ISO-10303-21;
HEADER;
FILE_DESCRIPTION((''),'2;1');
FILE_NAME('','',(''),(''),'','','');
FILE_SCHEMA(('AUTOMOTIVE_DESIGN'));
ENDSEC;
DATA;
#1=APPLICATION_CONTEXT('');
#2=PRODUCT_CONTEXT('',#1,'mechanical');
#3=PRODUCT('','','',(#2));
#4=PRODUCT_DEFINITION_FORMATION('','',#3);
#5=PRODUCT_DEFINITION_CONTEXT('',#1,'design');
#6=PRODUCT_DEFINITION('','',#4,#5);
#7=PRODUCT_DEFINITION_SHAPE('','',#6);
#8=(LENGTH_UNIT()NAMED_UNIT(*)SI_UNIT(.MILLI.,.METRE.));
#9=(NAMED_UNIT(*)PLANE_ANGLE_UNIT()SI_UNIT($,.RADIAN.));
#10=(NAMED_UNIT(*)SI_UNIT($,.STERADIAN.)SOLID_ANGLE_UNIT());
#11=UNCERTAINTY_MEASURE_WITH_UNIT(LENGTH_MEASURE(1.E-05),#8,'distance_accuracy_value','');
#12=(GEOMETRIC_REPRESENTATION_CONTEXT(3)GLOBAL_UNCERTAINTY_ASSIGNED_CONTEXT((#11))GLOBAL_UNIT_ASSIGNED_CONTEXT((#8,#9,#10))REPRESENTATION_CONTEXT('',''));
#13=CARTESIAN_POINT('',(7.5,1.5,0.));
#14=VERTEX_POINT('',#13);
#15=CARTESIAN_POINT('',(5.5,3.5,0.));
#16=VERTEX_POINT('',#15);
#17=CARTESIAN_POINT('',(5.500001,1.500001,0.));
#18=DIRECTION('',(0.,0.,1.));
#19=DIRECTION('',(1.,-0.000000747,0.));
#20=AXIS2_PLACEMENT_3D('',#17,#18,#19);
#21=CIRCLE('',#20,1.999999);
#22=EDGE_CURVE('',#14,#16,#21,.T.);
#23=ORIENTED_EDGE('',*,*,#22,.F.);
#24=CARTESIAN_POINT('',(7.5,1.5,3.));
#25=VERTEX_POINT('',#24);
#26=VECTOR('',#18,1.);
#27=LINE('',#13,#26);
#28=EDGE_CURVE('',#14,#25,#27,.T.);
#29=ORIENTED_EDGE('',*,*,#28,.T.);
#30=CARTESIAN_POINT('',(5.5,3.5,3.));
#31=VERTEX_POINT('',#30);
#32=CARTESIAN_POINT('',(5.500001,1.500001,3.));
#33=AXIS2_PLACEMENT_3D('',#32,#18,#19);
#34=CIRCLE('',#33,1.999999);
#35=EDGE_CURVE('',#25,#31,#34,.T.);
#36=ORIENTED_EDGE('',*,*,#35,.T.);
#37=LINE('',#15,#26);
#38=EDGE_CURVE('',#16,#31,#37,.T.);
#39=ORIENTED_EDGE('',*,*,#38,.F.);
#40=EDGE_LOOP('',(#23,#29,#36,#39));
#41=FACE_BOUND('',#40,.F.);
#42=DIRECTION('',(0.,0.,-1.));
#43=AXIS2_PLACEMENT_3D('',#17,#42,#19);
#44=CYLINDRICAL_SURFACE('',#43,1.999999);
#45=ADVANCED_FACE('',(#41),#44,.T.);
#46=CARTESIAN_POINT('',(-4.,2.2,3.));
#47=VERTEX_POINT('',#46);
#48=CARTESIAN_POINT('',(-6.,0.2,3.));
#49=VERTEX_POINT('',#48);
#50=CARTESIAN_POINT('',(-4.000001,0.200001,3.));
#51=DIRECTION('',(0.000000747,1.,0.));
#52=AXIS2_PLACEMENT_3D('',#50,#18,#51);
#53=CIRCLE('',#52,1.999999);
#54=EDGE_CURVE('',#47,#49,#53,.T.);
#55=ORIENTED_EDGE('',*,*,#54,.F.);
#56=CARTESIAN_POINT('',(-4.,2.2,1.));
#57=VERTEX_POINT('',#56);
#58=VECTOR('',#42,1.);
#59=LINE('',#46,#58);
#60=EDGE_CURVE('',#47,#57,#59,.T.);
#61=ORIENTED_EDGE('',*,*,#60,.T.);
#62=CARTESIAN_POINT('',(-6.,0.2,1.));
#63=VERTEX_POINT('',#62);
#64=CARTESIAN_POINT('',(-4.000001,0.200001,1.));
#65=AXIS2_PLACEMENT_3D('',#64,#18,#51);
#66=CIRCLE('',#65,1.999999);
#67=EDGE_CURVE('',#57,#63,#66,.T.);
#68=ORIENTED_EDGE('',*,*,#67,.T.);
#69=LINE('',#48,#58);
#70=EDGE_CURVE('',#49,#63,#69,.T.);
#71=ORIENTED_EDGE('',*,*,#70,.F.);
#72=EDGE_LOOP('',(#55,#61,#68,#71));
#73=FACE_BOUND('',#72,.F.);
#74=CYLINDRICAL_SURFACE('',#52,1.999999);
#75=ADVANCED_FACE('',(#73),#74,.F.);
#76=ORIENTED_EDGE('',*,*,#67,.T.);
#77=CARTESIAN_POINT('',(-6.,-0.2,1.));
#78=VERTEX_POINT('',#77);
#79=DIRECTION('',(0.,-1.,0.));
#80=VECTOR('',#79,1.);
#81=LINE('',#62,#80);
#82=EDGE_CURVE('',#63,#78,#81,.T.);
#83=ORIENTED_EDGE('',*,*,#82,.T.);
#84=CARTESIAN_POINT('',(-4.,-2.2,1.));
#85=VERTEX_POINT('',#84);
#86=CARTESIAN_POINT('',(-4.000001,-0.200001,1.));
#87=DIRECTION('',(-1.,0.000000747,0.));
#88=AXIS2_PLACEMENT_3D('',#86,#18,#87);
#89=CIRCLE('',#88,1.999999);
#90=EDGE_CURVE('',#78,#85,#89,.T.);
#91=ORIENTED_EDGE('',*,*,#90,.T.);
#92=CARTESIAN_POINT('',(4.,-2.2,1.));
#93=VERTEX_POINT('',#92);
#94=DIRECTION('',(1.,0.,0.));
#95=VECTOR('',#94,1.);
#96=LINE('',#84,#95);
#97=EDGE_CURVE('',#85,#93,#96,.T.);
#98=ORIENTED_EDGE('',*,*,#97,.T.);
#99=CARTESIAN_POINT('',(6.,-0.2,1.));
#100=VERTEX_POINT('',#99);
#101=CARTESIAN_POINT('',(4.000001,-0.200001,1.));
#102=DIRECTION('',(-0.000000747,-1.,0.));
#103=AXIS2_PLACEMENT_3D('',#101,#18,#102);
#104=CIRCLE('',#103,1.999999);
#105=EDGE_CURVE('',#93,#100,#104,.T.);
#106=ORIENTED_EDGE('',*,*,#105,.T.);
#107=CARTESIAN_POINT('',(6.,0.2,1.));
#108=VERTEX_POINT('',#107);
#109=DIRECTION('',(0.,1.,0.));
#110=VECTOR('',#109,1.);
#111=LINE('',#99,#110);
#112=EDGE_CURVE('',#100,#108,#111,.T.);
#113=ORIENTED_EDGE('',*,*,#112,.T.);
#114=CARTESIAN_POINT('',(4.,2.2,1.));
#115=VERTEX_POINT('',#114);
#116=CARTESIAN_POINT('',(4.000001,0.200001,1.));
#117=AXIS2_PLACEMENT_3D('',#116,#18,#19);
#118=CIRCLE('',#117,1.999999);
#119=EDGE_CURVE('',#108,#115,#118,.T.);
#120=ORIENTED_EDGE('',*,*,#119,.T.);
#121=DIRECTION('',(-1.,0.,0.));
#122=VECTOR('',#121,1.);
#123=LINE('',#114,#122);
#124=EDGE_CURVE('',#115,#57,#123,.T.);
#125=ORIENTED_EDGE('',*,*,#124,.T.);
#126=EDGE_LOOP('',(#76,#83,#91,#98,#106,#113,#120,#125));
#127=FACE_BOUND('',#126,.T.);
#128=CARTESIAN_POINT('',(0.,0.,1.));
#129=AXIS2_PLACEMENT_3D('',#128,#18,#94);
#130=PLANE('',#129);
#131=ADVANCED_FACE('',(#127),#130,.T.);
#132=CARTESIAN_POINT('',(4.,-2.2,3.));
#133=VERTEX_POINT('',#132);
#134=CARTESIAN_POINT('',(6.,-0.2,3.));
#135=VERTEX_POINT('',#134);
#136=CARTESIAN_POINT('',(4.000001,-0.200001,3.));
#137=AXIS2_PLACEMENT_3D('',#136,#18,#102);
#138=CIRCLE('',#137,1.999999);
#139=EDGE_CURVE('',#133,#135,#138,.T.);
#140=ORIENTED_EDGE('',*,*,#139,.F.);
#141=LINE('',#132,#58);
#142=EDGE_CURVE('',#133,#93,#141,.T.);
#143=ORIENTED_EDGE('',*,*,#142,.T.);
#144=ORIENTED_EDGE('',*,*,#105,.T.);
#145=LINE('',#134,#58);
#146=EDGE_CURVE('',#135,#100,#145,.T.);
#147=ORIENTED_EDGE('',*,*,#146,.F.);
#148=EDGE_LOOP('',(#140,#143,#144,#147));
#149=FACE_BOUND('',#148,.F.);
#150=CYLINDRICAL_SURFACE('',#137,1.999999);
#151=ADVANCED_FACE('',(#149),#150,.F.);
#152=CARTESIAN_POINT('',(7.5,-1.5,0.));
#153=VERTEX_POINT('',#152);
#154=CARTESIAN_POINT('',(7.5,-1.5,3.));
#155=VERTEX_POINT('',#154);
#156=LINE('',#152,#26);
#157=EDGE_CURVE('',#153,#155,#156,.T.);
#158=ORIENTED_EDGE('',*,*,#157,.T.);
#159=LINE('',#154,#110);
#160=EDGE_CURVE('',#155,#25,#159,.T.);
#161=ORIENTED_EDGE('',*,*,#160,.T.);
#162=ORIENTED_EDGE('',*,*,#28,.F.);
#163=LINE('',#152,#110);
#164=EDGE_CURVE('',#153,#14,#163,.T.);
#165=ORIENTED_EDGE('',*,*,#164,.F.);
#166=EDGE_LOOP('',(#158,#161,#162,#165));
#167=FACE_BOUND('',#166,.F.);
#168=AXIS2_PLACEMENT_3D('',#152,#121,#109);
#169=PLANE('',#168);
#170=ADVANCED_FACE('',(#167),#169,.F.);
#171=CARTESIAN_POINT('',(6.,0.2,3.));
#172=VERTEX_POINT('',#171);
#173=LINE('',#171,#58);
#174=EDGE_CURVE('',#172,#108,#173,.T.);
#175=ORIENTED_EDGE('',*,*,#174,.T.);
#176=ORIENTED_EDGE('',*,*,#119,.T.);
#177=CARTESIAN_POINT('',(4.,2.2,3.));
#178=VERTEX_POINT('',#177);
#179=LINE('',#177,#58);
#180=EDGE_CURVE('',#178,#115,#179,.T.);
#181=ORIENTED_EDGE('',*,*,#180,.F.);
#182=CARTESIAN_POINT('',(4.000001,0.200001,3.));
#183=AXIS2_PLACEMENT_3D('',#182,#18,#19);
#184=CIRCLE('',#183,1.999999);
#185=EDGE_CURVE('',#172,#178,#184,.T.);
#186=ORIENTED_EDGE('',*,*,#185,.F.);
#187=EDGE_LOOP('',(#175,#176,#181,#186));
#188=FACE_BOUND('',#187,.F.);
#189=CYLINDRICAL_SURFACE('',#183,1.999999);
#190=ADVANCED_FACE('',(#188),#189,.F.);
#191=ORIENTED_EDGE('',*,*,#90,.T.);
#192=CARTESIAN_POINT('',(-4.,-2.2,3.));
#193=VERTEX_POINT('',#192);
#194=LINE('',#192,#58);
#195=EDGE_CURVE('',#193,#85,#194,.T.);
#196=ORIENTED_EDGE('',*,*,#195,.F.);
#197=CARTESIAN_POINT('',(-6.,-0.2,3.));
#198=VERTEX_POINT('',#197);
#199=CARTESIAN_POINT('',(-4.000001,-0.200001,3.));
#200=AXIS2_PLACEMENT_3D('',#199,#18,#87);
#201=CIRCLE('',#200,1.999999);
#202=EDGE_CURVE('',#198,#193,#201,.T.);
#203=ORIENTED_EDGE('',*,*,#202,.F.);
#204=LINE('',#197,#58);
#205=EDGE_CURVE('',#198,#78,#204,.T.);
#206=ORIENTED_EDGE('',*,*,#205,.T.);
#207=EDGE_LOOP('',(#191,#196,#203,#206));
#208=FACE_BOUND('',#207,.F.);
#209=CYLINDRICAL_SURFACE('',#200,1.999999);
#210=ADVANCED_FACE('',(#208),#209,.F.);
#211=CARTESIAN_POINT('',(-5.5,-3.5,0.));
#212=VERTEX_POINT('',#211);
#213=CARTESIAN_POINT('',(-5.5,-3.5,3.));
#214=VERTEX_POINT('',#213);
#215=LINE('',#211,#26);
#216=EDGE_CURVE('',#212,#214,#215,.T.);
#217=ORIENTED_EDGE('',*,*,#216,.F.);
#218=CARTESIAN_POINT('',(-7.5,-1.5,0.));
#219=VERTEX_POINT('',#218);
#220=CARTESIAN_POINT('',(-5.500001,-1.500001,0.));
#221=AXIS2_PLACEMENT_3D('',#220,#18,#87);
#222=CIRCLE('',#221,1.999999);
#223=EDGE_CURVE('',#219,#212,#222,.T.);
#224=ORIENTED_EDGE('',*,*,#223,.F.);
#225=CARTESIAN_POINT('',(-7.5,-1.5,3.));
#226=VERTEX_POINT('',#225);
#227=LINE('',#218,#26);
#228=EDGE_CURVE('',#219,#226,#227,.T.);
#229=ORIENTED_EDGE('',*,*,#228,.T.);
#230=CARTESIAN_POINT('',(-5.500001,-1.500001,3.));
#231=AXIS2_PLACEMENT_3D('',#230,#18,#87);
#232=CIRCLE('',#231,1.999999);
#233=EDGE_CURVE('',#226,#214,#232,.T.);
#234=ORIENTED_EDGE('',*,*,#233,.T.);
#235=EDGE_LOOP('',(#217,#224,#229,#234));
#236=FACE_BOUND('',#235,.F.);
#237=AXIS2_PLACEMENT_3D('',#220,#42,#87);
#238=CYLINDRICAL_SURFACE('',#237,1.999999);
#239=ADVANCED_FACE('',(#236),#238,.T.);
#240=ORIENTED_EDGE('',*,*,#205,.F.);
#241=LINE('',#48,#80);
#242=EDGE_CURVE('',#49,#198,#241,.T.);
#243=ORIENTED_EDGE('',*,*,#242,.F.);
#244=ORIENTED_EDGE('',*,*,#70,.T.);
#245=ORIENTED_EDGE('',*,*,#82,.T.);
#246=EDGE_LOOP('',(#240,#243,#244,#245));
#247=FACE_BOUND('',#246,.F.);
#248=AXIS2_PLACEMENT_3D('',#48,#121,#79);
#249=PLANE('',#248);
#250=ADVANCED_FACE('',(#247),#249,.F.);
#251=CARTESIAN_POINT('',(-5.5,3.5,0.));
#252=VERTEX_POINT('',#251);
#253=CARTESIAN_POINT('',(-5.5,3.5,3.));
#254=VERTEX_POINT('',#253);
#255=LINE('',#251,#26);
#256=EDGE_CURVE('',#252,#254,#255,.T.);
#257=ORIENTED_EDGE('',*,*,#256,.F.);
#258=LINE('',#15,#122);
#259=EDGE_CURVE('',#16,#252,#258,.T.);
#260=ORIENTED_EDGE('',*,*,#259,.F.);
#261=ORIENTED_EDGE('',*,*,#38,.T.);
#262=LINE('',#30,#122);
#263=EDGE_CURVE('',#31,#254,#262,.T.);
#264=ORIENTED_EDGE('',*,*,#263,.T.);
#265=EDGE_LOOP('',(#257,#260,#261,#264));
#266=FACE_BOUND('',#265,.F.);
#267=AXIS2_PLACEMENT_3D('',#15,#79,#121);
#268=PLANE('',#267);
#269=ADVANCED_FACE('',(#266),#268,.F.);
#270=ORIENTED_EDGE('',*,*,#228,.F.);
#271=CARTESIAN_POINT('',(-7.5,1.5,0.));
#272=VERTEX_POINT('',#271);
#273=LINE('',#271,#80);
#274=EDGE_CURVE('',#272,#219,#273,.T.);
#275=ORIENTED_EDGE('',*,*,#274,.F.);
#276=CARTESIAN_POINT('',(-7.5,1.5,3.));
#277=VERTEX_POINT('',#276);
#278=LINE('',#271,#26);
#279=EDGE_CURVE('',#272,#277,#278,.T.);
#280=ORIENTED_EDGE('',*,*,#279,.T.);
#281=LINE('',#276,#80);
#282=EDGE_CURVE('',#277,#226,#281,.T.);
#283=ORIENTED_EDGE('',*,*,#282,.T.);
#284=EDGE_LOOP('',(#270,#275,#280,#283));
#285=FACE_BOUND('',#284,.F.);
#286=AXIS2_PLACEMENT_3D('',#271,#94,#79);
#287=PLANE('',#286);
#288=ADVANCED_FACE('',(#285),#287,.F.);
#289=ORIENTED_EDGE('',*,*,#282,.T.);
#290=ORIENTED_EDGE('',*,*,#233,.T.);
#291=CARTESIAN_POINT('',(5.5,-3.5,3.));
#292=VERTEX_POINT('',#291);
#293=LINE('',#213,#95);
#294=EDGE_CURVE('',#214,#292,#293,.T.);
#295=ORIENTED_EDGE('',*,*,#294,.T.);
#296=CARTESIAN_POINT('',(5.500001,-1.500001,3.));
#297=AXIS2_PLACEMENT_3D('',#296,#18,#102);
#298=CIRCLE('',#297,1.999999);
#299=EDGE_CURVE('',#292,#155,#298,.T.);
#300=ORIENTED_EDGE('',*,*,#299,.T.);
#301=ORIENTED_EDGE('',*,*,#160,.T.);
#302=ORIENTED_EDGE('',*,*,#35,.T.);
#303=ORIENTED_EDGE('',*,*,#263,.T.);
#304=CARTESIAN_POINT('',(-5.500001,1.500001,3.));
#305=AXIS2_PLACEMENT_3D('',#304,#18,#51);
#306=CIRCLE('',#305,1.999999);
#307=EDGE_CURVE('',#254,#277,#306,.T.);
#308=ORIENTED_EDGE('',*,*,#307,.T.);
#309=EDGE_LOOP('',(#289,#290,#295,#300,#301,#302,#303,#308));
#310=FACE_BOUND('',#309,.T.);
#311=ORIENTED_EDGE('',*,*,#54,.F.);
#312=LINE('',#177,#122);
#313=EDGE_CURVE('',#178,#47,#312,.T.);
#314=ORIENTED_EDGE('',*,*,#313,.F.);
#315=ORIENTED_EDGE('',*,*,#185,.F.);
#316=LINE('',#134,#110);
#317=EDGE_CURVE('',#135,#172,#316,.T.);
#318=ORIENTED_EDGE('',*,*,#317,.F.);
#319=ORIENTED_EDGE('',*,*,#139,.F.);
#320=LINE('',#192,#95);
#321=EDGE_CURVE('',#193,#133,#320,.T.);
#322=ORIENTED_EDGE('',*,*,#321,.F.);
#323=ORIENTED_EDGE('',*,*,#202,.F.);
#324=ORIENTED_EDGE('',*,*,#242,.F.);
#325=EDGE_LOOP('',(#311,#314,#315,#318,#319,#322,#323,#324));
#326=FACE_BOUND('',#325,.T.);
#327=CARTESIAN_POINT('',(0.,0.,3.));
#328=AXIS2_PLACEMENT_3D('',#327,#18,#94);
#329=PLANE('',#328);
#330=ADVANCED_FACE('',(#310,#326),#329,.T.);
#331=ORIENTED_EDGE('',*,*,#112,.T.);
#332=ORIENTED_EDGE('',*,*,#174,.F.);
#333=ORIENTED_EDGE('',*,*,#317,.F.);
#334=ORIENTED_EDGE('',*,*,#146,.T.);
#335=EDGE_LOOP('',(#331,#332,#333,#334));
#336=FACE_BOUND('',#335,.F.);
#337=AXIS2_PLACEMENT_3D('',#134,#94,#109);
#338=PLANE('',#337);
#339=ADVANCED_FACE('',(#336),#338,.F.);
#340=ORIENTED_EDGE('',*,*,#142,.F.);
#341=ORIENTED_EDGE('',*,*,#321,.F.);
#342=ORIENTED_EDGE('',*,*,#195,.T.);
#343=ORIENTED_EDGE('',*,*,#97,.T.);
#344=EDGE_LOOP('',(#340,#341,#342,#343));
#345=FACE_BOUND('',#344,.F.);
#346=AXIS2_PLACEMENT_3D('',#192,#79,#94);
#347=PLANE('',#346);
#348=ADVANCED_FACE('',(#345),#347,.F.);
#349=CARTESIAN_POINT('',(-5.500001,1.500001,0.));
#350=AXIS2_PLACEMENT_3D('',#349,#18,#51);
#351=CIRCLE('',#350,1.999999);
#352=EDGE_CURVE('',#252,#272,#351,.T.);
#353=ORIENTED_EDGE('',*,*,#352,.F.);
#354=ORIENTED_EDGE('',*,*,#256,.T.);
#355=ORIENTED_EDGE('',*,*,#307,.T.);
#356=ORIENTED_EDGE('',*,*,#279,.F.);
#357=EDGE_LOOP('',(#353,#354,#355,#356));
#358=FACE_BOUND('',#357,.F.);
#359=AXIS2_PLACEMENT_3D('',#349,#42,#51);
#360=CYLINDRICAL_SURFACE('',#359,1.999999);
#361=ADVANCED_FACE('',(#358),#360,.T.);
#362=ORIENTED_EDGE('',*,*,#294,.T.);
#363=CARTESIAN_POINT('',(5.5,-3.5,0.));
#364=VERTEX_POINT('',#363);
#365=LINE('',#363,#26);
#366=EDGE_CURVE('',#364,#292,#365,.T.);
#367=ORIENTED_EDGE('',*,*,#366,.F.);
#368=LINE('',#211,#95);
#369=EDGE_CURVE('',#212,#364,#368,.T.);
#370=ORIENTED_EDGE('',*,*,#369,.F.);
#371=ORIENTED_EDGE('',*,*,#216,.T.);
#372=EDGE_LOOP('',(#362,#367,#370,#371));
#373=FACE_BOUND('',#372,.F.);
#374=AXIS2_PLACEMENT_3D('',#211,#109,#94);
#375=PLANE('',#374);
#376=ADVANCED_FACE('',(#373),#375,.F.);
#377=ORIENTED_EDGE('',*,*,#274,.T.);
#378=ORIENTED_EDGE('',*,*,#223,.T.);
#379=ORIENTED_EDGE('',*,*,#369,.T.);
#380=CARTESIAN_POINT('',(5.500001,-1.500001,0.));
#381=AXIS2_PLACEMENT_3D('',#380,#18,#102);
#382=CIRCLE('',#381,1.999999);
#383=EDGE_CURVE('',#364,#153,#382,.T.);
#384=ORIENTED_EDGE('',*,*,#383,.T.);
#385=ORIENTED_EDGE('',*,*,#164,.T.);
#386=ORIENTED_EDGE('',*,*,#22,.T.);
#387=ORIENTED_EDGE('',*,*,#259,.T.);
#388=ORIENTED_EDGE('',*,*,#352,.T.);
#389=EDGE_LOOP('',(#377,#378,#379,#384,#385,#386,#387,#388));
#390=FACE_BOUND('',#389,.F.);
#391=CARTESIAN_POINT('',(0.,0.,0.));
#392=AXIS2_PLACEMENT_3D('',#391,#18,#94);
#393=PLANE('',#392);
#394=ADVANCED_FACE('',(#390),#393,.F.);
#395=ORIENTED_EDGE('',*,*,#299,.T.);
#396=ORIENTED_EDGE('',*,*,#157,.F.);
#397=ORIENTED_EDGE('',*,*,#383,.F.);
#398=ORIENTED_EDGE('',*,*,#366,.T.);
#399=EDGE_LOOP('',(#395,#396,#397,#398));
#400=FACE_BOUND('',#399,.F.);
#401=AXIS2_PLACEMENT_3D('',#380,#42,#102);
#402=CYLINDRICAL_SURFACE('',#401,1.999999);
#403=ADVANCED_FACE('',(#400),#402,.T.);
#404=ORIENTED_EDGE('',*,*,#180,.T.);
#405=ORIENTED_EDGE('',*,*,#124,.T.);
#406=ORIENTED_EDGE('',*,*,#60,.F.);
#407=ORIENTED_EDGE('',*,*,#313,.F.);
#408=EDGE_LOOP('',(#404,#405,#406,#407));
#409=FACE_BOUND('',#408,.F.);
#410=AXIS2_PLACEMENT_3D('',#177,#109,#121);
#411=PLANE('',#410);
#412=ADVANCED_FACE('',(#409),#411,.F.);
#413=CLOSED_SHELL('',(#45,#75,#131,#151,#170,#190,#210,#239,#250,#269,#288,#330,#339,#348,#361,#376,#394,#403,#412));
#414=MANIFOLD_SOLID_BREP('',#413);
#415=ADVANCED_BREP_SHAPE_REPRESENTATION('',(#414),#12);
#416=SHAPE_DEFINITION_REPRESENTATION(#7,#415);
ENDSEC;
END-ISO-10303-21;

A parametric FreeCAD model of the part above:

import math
import FreeCAD as App
import Part
import Sketcher

V = App.Vector
Q = App.Units.Quantity

doc = App.newDocument("Part")
body = doc.addObject("PartDesign::Body", "Body")

# Sketch on XY plane
sketch1 = body.newObject("Sketcher::SketchObject", "Sketch")
sketch1.AttachmentSupport = (doc.getObject("XY_Plane"), [""])
sketch1.MapMode = "FlatFace"
sketch1.addGeometry([
    Part.ArcOfCircle(Part.Circle(V(5.5, 1.5, 0), V(0, 0, 1), 2), math.radians(0), math.radians(90)),  # 0
    Part.LineSegment(V(5.5, 3.5, 0), V(-5.5, 3.5, 0)),  # 1
    Part.ArcOfCircle(Part.Circle(V(-5.5, 1.5, 0), V(0, 0, 1), 2), math.radians(90), math.radians(180)),  # 2
    Part.LineSegment(V(-7.5, 1.5, 0), V(-7.5, -1.5, 0)),  # 3
    Part.ArcOfCircle(Part.Circle(V(-5.5, -1.5, 0), V(0, 0, 1), 2), math.radians(180), math.radians(270)),  # 4
    Part.LineSegment(V(-5.5, -3.5, 0), V(5.5, -3.5, 0)),  # 5
    Part.ArcOfCircle(Part.Circle(V(5.5, -1.5, 0), V(0, 0, 1), 2), math.radians(-90), math.radians(0)),  # 6
    Part.LineSegment(V(7.5, -1.5, 0), V(7.5, 1.5, 0)),  # 7
], False)
sketch1.addConstraint([
    Sketcher.Constraint("Tangent", 0, 2, 1, 1),
    Sketcher.Constraint("Tangent", 1, 2, 2, 1),
    Sketcher.Constraint("Tangent", 2, 2, 3, 1),
    Sketcher.Constraint("Tangent", 3, 2, 4, 1),
    Sketcher.Constraint("Tangent", 4, 2, 5, 1),
    Sketcher.Constraint("Tangent", 5, 2, 6, 1),
    Sketcher.Constraint("Tangent", 6, 2, 7, 1),
    Sketcher.Constraint("Tangent", 7, 2, 0, 1),
    Sketcher.Constraint("Horizontal", 1),
    Sketcher.Constraint("Vertical", 3),
    Sketcher.Constraint("Horizontal", 5),
    Sketcher.Constraint("Vertical", 7),
    Sketcher.Constraint("Equal", 0, 2),
    Sketcher.Constraint("Equal", 2, 4),
    Sketcher.Constraint("Equal", 4, 6),
    Sketcher.Constraint("Symmetric", 0, 3, 4, 3, -1, 1),
    Sketcher.Constraint("Radius", 0, Q("1.999999 mm")),
    Sketcher.Constraint("DistanceX", 1, 2, 1, 1, Q("11 mm")),
    Sketcher.Constraint("DistanceY", 3, 2, 3, 1, Q("3 mm")),
])
pad1 = body.newObject("PartDesign::Pad", "Pad")
pad1.Profile = sketch1
pad1.Length = 3

# Sketch on XY plane
sketch2 = body.newObject("Sketcher::SketchObject", "Sketch001")
sketch2.AttachmentSupport = (doc.getObject("XY_Plane"), [""])
sketch2.MapMode = "FlatFace"
sketch2.AttachmentOffset = App.Placement(V(0, 0, 3), App.Rotation())
sketch2.addGeometry([
    Part.ArcOfCircle(Part.Circle(V(4, 0.2, 0), V(0, 0, 1), 2), math.radians(0), math.radians(90)),  # 0
    Part.LineSegment(V(4, 2.2, 0), V(-4, 2.2, 0)),  # 1
    Part.ArcOfCircle(Part.Circle(V(-4, 0.2, 0), V(0, 0, 1), 2), math.radians(90), math.radians(180)),  # 2
    Part.LineSegment(V(-6, 0.2, 0), V(-6, -0.2, 0)),  # 3
    Part.ArcOfCircle(Part.Circle(V(-4, -0.2, 0), V(0, 0, 1), 2), math.radians(180), math.radians(270)),  # 4
    Part.LineSegment(V(-4, -2.2, 0), V(4, -2.2, 0)),  # 5
    Part.ArcOfCircle(Part.Circle(V(4, -0.2, 0), V(0, 0, 1), 2), math.radians(-90), math.radians(0)),  # 6
    Part.LineSegment(V(6, -0.2, 0), V(6, 0.2, 0)),  # 7
], False)
sketch2.addConstraint([
    Sketcher.Constraint("Tangent", 0, 2, 1, 1),
    Sketcher.Constraint("Tangent", 1, 2, 2, 1),
    Sketcher.Constraint("Tangent", 2, 2, 3, 1),
    Sketcher.Constraint("Tangent", 3, 2, 4, 1),
    Sketcher.Constraint("Tangent", 4, 2, 5, 1),
    Sketcher.Constraint("Tangent", 5, 2, 6, 1),
    Sketcher.Constraint("Tangent", 6, 2, 7, 1),
    Sketcher.Constraint("Tangent", 7, 2, 0, 1),
    Sketcher.Constraint("Horizontal", 1),
    Sketcher.Constraint("Vertical", 3),
    Sketcher.Constraint("Horizontal", 5),
    Sketcher.Constraint("Vertical", 7),
    Sketcher.Constraint("Equal", 0, 2),
    Sketcher.Constraint("Equal", 2, 4),
    Sketcher.Constraint("Equal", 4, 6),
    Sketcher.Constraint("Symmetric", 0, 3, 4, 3, -1, 1),
    Sketcher.Constraint("Radius", 0, Q("1.999999 mm")),
    Sketcher.Constraint("DistanceX", 1, 2, 1, 1, Q("8 mm")),
    Sketcher.Constraint("DistanceY", 3, 2, 3, 1, Q("0.4 mm")),
])
pad2 = body.newObject("PartDesign::Pad", "Pad001")
pad2.Profile = sketch2
pad2.Length = 2
pad2.Reversed = True

# Sketch on XY plane
sketch3 = body.newObject("Sketcher::SketchObject", "Sketch002")
sketch3.AttachmentSupport = (doc.getObject("XY_Plane"), [""])
sketch3.MapMode = "FlatFace"
sketch3.AttachmentOffset = App.Placement(V(0, 0, 3), App.Rotation())
sketch3.addGeometry([
    Part.ArcOfCircle(Part.Circle(V(4, 0.2, 0), V(0, 0, 1), 2), math.radians(0), math.radians(90)),  # 0
    Part.LineSegment(V(4, 2.2, 0), V(-4, 2.2, 0)),  # 1
    Part.ArcOfCircle(Part.Circle(V(-4, 0.2, 0), V(0, 0, 1), 2), math.radians(90), math.radians(180)),  # 2
    Part.LineSegment(V(-6, 0.2, 0), V(-6, -0.2, 0)),  # 3
    Part.ArcOfCircle(Part.Circle(V(-4, -0.2, 0), V(0, 0, 1), 2), math.radians(180), math.radians(270)),  # 4
    Part.LineSegment(V(-4, -2.2, 0), V(4, -2.2, 0)),  # 5
    Part.ArcOfCircle(Part.Circle(V(4, -0.2, 0), V(0, 0, 1), 2), math.radians(-90), math.radians(0)),  # 6
    Part.LineSegment(V(6, -0.2, 0), V(6, 0.2, 0)),  # 7
], False)
sketch3.addConstraint([
    Sketcher.Constraint("Tangent", 0, 2, 1, 1),
    Sketcher.Constraint("Tangent", 1, 2, 2, 1),
    Sketcher.Constraint("Tangent", 2, 2, 3, 1),
    Sketcher.Constraint("Tangent", 3, 2, 4, 1),
    Sketcher.Constraint("Tangent", 4, 2, 5, 1),
    Sketcher.Constraint("Tangent", 5, 2, 6, 1),
    Sketcher.Constraint("Tangent", 6, 2, 7, 1),
    Sketcher.Constraint("Tangent", 7, 2, 0, 1),
    Sketcher.Constraint("Horizontal", 1),
    Sketcher.Constraint("Vertical", 3),
    Sketcher.Constraint("Horizontal", 5),
    Sketcher.Constraint("Vertical", 7),
    Sketcher.Constraint("Equal", 0, 2),
    Sketcher.Constraint("Equal", 2, 4),
    Sketcher.Constraint("Equal", 4, 6),
    Sketcher.Constraint("Symmetric", 0, 3, 4, 3, -1, 1),
    Sketcher.Constraint("Radius", 0, Q("1.999999 mm")),
    Sketcher.Constraint("DistanceX", 1, 2, 1, 1, Q("8 mm")),
    Sketcher.Constraint("DistanceY", 3, 2, 3, 1, Q("0.4 mm")),
])
pocket1 = body.newObject("PartDesign::Pocket", "Pocket")
pocket1.Profile = sketch3
pocket1.Length = 2

doc.recompute()
